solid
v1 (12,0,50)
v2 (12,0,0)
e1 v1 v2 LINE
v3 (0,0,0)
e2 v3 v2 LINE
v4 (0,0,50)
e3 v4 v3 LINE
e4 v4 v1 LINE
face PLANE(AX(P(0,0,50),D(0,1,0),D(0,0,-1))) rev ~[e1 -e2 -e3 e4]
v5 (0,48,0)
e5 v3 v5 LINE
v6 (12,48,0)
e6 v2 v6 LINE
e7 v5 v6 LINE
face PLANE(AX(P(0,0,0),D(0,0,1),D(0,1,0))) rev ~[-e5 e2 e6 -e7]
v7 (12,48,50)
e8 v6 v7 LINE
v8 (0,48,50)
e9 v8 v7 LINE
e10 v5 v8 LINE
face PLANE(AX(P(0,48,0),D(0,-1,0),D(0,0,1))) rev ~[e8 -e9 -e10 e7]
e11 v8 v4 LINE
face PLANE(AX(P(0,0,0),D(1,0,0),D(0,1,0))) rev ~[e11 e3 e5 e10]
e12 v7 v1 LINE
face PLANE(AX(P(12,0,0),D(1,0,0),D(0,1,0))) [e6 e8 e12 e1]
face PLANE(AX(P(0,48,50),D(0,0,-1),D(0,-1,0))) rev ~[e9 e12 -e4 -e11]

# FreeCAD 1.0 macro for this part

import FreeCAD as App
import Part
import Sketcher

V = App.Vector

doc = App.newDocument("Part")
body = doc.addObject("PartDesign::Body", "Body")

sketch1 = doc.addObject("Sketcher::SketchObject", "Sketch")
body.addObject(sketch1)
sketch1.AttachmentSupport = (doc.YZ_Plane, [""])
sketch1.MapMode = "FlatFace"
sketch1.addGeometry([
    Part.LineSegment(V(0, 50, 0), V(0, 0, 0)),
    Part.LineSegment(V(0, 0, 0), V(48, 0, 0)),
    Part.LineSegment(V(48, 0, 0), V(48, 50, 0)),
    Part.LineSegment(V(48, 50, 0), V(0, 50, 0)),
], False)
sketch1.addConstraint([
    Sketcher.Constraint("Coincident", 0, 2, 1, 1),
    Sketcher.Constraint("Coincident", 1, 2, 2, 1),
    Sketcher.Constraint("Coincident", 2, 2, 3, 1),
    Sketcher.Constraint("Coincident", 3, 2, 0, 1),
    Sketcher.Constraint("Vertical", 0),
    Sketcher.Constraint("Horizontal", 1),
    Sketcher.Constraint("Vertical", 2),
    Sketcher.Constraint("Horizontal", 3),
    Sketcher.Constraint("Coincident", 0, 2, -1, 1),
    Sketcher.Constraint("DistanceX", 1, 1, 1, 2, 48.0),
    Sketcher.Constraint("DistanceY", 0, 2, 0, 1, 50.0),
])
pad1 = doc.addObject("PartDesign::Pad", "Pad")
body.addObject(pad1)
pad1.Profile = sketch1
pad1.Length = 12

doc.recompute()
